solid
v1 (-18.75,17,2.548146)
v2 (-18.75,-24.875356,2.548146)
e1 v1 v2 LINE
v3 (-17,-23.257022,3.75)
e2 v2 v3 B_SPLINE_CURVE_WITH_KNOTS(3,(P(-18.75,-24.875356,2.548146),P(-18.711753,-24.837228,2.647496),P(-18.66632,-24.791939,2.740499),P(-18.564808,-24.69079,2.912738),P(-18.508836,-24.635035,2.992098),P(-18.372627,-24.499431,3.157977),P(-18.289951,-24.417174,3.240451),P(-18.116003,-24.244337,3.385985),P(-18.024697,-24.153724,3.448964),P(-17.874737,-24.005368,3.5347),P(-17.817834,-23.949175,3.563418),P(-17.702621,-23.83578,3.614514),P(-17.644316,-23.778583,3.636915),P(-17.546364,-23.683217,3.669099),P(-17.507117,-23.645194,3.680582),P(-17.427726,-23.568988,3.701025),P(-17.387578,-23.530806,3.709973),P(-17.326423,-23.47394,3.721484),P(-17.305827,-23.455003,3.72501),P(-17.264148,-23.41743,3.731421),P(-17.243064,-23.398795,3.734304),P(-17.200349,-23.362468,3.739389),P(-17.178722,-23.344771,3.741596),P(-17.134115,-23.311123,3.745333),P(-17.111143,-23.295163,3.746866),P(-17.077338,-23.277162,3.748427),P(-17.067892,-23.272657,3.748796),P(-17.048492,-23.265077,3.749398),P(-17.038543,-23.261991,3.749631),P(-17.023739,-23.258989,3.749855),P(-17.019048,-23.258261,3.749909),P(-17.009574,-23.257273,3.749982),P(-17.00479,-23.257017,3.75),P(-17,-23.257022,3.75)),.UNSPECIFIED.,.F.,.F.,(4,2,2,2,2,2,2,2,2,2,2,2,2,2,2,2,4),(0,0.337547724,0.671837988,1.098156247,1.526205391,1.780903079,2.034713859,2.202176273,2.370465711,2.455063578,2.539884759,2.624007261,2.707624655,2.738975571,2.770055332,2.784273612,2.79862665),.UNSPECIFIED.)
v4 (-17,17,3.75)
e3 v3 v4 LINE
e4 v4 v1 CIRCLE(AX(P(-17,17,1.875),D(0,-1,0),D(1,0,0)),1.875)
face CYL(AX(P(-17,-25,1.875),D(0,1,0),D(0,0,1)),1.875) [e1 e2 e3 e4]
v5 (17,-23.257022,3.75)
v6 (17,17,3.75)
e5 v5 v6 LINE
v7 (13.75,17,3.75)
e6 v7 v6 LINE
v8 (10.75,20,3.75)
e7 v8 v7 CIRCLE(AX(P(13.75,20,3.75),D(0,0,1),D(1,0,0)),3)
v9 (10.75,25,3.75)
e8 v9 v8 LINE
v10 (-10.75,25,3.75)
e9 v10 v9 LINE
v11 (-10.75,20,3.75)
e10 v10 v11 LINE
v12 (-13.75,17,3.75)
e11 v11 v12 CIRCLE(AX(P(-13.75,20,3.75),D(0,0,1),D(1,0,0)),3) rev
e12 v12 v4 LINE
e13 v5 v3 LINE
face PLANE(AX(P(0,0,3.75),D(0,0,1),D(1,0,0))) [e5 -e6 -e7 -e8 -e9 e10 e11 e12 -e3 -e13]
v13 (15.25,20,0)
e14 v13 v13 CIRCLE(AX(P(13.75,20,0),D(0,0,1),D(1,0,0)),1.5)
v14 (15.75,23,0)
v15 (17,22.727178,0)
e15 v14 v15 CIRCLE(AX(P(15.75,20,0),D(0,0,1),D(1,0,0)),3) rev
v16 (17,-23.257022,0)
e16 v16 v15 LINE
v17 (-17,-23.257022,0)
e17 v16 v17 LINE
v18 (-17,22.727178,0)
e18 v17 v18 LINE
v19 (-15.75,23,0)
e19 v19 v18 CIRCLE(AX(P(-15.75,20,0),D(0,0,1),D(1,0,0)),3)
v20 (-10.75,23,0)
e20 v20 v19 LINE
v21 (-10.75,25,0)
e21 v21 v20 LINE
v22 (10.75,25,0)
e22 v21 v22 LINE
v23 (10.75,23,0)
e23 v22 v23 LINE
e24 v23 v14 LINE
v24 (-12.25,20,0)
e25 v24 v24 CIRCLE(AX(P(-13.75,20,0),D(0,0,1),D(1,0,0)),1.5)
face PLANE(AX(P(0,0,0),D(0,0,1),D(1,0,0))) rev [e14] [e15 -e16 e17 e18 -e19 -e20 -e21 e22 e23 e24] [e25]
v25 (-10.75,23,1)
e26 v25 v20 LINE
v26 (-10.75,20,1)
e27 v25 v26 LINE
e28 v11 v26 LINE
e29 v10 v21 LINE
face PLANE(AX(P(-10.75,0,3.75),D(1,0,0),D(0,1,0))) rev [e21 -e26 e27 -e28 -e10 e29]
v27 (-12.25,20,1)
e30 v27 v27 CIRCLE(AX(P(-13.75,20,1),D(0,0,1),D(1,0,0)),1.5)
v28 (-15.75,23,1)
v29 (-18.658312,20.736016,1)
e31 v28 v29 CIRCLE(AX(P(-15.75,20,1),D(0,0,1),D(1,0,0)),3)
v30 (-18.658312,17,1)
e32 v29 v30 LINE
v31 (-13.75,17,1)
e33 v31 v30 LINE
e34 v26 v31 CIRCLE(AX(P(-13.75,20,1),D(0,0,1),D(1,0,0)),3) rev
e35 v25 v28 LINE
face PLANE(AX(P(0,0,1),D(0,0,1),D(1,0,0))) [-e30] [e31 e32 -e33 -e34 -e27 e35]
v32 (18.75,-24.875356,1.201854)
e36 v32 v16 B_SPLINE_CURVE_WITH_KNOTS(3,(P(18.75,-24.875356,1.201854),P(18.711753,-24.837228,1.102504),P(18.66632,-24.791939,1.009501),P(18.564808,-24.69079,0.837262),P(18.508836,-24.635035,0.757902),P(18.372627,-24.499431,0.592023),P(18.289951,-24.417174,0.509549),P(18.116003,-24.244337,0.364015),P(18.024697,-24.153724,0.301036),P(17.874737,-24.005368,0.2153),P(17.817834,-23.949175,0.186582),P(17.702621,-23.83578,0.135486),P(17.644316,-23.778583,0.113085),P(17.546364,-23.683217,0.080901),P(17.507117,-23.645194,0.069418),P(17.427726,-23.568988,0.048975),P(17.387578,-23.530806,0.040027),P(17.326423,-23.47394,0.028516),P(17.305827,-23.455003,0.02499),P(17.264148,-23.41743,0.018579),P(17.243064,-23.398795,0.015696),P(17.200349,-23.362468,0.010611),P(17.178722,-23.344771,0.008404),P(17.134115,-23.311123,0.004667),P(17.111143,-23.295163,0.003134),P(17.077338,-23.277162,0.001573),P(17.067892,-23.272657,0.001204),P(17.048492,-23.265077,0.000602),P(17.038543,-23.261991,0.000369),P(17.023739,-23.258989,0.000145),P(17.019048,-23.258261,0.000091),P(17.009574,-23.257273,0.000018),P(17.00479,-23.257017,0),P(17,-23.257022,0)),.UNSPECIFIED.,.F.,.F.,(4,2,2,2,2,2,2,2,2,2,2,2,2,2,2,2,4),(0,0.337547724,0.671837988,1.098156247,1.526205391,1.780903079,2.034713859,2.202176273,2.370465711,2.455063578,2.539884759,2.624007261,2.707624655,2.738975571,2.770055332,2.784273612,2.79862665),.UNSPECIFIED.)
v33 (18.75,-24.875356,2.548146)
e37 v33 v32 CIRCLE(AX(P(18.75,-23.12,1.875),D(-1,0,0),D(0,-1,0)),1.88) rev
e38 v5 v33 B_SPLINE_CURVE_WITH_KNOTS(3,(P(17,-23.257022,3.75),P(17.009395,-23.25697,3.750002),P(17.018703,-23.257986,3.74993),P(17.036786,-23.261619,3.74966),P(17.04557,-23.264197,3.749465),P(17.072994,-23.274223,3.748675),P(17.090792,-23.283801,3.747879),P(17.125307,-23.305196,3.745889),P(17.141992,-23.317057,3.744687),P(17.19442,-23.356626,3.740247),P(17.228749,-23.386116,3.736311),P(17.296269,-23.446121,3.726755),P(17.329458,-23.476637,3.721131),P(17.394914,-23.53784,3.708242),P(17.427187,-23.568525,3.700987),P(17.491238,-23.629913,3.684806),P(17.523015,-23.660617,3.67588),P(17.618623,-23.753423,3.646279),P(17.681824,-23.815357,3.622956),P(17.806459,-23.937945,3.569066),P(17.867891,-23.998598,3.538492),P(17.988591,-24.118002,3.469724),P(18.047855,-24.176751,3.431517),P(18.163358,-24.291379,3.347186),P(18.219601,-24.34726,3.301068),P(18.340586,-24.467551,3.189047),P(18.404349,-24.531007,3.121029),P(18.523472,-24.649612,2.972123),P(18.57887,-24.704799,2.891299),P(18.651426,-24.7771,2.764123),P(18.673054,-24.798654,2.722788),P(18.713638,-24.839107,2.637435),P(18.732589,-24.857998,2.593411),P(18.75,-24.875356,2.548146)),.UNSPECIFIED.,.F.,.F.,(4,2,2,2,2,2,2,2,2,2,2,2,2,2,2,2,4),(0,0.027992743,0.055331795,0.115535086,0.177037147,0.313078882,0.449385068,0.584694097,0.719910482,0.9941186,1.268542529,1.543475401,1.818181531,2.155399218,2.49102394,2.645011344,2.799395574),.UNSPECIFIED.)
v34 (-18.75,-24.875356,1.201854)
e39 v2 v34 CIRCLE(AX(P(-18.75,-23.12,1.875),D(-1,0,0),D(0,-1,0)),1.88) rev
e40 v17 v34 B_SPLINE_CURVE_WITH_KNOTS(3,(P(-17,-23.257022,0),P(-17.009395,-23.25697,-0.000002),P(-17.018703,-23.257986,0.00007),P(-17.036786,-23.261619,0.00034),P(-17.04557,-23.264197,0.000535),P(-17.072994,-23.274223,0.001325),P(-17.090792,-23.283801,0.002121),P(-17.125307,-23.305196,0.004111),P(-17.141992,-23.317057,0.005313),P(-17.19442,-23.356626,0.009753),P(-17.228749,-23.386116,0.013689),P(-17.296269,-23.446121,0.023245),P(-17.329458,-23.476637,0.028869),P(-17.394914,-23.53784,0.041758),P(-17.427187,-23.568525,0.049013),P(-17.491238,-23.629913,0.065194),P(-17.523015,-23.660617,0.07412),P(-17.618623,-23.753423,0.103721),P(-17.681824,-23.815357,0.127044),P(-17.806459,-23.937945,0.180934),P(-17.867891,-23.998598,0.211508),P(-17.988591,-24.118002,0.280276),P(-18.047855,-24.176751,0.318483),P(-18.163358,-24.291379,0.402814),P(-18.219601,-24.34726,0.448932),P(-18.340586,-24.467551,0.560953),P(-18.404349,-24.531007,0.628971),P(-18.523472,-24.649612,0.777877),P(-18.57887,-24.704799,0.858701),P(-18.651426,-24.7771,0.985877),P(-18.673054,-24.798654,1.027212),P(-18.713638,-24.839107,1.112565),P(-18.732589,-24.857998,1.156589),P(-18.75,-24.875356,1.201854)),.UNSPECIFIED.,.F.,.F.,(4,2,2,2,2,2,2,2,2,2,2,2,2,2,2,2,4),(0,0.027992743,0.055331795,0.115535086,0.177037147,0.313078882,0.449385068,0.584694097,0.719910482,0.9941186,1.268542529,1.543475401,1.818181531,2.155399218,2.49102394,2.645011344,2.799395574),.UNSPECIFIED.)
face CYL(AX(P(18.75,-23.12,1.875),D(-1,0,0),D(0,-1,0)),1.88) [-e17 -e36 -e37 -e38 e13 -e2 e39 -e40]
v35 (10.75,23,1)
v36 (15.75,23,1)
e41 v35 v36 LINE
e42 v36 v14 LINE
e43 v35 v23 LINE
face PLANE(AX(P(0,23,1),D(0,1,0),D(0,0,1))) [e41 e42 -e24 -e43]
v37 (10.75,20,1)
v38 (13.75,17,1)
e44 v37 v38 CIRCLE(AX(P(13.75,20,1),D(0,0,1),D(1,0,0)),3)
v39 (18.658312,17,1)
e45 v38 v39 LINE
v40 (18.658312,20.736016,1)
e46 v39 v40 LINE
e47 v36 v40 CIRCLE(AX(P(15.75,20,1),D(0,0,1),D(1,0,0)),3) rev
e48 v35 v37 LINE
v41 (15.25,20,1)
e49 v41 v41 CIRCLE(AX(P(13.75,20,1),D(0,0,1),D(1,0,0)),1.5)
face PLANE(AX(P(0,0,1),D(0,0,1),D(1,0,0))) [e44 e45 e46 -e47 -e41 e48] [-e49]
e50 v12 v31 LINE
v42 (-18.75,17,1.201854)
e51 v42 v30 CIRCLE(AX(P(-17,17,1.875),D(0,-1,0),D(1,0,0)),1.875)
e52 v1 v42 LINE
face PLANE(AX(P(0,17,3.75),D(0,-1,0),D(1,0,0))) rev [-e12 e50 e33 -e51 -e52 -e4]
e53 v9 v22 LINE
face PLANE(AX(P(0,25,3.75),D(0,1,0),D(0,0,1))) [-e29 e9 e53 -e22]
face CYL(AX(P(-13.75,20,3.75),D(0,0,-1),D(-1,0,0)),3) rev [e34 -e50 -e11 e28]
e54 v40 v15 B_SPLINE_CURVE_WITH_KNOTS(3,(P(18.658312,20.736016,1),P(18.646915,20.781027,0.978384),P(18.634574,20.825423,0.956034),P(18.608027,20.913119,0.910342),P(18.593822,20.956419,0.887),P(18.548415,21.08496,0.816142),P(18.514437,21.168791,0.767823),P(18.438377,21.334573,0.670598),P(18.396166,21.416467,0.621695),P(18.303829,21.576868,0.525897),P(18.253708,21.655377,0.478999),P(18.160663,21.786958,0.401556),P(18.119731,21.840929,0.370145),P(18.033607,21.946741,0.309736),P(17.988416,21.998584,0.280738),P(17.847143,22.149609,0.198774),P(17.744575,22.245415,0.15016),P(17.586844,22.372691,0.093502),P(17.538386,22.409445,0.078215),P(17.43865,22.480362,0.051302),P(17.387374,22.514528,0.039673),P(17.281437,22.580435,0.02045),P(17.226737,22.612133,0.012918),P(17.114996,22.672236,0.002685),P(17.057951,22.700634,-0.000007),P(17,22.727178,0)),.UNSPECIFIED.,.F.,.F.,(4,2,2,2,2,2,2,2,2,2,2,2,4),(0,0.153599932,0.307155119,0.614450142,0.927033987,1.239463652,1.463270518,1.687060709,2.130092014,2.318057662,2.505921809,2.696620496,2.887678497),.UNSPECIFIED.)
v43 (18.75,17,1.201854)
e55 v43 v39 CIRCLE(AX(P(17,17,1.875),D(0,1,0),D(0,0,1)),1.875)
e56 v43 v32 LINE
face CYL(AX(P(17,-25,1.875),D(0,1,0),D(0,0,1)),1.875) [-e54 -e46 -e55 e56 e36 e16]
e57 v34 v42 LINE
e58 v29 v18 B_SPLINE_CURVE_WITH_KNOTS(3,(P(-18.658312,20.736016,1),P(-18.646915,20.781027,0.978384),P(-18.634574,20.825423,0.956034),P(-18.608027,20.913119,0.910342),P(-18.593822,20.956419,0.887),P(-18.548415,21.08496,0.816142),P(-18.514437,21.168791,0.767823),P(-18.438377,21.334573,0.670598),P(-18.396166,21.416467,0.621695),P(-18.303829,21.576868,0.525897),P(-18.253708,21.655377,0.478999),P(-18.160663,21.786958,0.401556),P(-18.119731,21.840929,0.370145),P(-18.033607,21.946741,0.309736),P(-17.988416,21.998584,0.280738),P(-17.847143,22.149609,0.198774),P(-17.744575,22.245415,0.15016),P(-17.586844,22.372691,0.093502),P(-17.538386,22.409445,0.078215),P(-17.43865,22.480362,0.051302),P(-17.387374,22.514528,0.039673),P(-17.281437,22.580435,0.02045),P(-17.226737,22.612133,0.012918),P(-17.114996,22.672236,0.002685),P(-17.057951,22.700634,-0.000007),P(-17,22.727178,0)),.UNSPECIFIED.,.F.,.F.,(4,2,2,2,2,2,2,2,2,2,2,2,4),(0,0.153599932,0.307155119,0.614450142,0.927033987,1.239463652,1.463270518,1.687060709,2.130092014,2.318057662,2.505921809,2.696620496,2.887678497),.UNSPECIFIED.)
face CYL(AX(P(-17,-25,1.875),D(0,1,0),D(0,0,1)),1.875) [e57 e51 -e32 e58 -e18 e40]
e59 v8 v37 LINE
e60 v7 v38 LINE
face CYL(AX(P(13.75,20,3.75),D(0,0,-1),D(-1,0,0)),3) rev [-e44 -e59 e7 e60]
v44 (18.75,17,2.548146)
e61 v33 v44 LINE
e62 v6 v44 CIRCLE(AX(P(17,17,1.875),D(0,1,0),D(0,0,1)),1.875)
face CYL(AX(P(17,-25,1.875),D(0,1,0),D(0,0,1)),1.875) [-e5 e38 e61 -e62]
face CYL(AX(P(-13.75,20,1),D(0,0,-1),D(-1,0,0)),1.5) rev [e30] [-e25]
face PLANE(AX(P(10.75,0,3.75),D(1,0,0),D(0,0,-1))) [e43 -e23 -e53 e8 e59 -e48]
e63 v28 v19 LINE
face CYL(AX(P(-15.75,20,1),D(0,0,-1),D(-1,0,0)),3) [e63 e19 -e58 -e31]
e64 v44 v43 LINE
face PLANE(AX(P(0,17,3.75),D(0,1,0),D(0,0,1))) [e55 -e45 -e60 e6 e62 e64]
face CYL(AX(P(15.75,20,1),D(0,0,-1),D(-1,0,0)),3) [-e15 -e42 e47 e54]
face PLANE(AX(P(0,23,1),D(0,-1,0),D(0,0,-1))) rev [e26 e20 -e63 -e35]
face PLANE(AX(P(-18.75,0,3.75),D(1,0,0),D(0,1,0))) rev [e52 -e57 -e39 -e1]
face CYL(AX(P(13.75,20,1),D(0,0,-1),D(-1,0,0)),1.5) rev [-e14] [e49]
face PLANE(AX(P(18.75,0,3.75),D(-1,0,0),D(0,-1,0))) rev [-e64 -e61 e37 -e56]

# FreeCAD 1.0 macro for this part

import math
import FreeCAD as App
import Part
import Sketcher
from FreeCAD import Vector

doc = App.newDocument("Part")
body = doc.addObject("PartDesign::Body", "Body")

sketch1 = body.newObject("Sketcher::SketchObject", "Sketch")
sketch1.AttachmentSupport = (doc.getObject("XY_Plane"), [""])
sketch1.MapMode = "FlatFace"
sketch1.addGeometry([
    Part.LineSegment(Vector(-10.8, 25, 0), Vector(-10.8, 20, 0)),
    Part.ArcOfCircle(Part.Circle(Vector(-13.7, 20, 0), Vector(0, 0, 1), 3), math.radians(-90), math.radians(0)),
    Part.LineSegment(Vector(-13.8, 17, 0), Vector(-18.8, 17, 0)),
    Part.LineSegment(Vector(-18.8, 17, 0), Vector(-18.8, -25, 0)),
    Part.LineSegment(Vector(-18.8, -25, 0), Vector(18.8, -25, 0)),
    Part.LineSegment(Vector(18.8, -25, 0), Vector(18.8, 17, 0)),
    Part.LineSegment(Vector(18.8, 17, 0), Vector(13.8, 17, 0)),
    Part.ArcOfCircle(Part.Circle(Vector(13.7, 20, 0), Vector(0, 0, 1), 3), math.radians(180), math.radians(270)),
    Part.LineSegment(Vector(10.8, 20, 0), Vector(10.8, 25, 0)),
    Part.LineSegment(Vector(10.8, 25, 0), Vector(-10.8, 25, 0)),
], False)
sketch1.addConstraint([
    Sketcher.Constraint("Tangent", 0, 2, 1, 2),
    Sketcher.Constraint("Tangent", 1, 1, 2, 1),
    Sketcher.Constraint("Coincident", 2, 2, 3, 1),
    Sketcher.Constraint("Coincident", 3, 2, 4, 1),
    Sketcher.Constraint("Coincident", 4, 2, 5, 1),
    Sketcher.Constraint("Coincident", 5, 2, 6, 1),
    Sketcher.Constraint("Tangent", 6, 2, 7, 2),
    Sketcher.Constraint("Tangent", 7, 1, 8, 1),
    Sketcher.Constraint("Coincident", 8, 2, 9, 1),
    Sketcher.Constraint("Coincident", 9, 2, 0, 1),
    Sketcher.Constraint("Vertical", 0),
    Sketcher.Constraint("Horizontal", 2),
    Sketcher.Constraint("Vertical", 3),
    Sketcher.Constraint("Horizontal", 4),
    Sketcher.Constraint("Vertical", 5),
    Sketcher.Constraint("Horizontal", 6),
    Sketcher.Constraint("Vertical", 8),
    Sketcher.Constraint("Horizontal", 9),
    Sketcher.Constraint("Equal", 1, 7),
    Sketcher.Constraint("Symmetric", 1, 3, 7, 3, -2),
    Sketcher.Constraint("Equal", 2, 6),
    Sketcher.Constraint("Equal", 6, 0),
    Sketcher.Constraint("Radius", 1, 3.0),
    Sketcher.Constraint("DistanceX", 2, 2, 2, 1, 5.0),
    Sketcher.Constraint("DistanceY", 3, 2, 3, 1, 42.0),
    Sketcher.Constraint("DistanceX", 4, 1, 4, 2, 37.5),
    Sketcher.Constraint("DistanceY", -1, 1, 1, 3, 20.0),
])
pad1 = body.newObject("PartDesign::Pad", "Pad")
pad1.Profile = sketch1
pad1.Length = 3.75

sketch2 = body.newObject("Sketcher::SketchObject", "Sketch001")
sketch2.AttachmentSupport = (doc.getObject("XY_Plane"), [""])
sketch2.MapMode = "FlatFace"
sketch2.addGeometry([
    Part.LineSegment(Vector(15.8, 23, 0), Vector(10.8, 23, 0)),
    Part.LineSegment(Vector(10.8, 23, 0), Vector(10.8, 20, 0)),
    Part.ArcOfCircle(Part.Circle(Vector(13.7, 20, 0), Vector(0, 0, 1), 3), math.radians(180), math.radians(270)),
    Part.LineSegment(Vector(13.8, 17, 0), Vector(18.8, 17, 0)),
    Part.LineSegment(Vector(18.8, 17, 0), Vector(18.8, 20, 0)),
    Part.ArcOfCircle(Part.Circle(Vector(15.8, 20, 0), Vector(0, 0, 1), 3), math.radians(0), math.radians(90)),
    Part.Circle(Vector(13.8, 20, 0), Vector(0, 0, 1), 1.5),
    Part.LineSegment(Vector(-10.8, 20, 0), Vector(-10.8, 23, 0)),
    Part.LineSegment(Vector(-10.8, 23, 0), Vector(-15.8, 23, 0)),
    Part.ArcOfCircle(Part.Circle(Vector(-15.8, 20, 0), Vector(0, 0, 1), 3), math.radians(90), math.radians(180)),
    Part.LineSegment(Vector(-18.8, 20, 0), Vector(-18.8, 17, 0)),
    Part.LineSegment(Vector(-18.8, 17, 0), Vector(-13.8, 17, 0)),
    Part.ArcOfCircle(Part.Circle(Vector(-13.7, 20, 0), Vector(0, 0, 1), 3), math.radians(-90), math.radians(0)),
    Part.Circle(Vector(-13.8, 20, 0), Vector(0, 0, 1), 1.5),
], False)
sketch2.addConstraint([
    Sketcher.Constraint("Coincident", 0, 2, 1, 1),
    Sketcher.Constraint("Tangent", 1, 2, 2, 1),
    Sketcher.Constraint("Tangent", 2, 2, 3, 1),
    Sketcher.Constraint("Coincident", 3, 2, 4, 1),
    Sketcher.Constraint("Tangent", 4, 2, 5, 1),
    Sketcher.Constraint("Tangent", 5, 2, 0, 1),
    Sketcher.Constraint("Coincident", 7, 2, 8, 1),
    Sketcher.Constraint("Tangent", 8, 2, 9, 1),
    Sketcher.Constraint("Tangent", 9, 2, 10, 1),
    Sketcher.Constraint("Coincident", 10, 2, 11, 1),
    Sketcher.Constraint("Tangent", 11, 2, 12, 1),
    Sketcher.Constraint("Tangent", 12, 2, 7, 1),
    Sketcher.Constraint("Horizontal", 0),
    Sketcher.Constraint("Vertical", 1),
    Sketcher.Constraint("Horizontal", 3),
    Sketcher.Constraint("Vertical", 4),
    Sketcher.Constraint("Vertical", 7),
    Sketcher.Constraint("Horizontal", 8),
    Sketcher.Constraint("Vertical", 10),
    Sketcher.Constraint("Horizontal", 11),
    Sketcher.Constraint("Coincident", 6, 3, 2, 3),
    Sketcher.Constraint("Coincident", 13, 3, 12, 3),
    Sketcher.Constraint("Equal", 2, 5),
    Sketcher.Constraint("Equal", 5, 9),
    Sketcher.Constraint("Equal", 9, 12),
    Sketcher.Constraint("Equal", 6, 13),
    Sketcher.Constraint("Symmetric", 5, 3, 9, 3, -2),
    Sketcher.Constraint("Symmetric", 2, 3, 12, 3, -2),
    Sketcher.Constraint("Horizontal", 2, 3, 5, 3),
    Sketcher.Constraint("Diameter", 6, 3.0),
    Sketcher.Constraint("Radius", 2, 3.0),
    Sketcher.Constraint("DistanceX", 0, 2, 0, 1, 5.0),
    Sketcher.Constraint("DistanceY", -1, 1, 2, 3, 20.0),
    Sketcher.Constraint("DistanceX", 9, 3, 2, 3, 29.5),
])
pad2 = body.newObject("PartDesign::Pad", "Pad001")
pad2.Profile = sketch2
pad2.Length = 1

sketch3 = body.newObject("Sketcher::SketchObject", "Sketch002")
sketch3.AttachmentSupport = (doc.getObject("YZ_Plane"), [""])
sketch3.MapMode = "FlatFace"
sketch3.AttachmentOffset = App.Placement(Vector(0, 0, -18.75), App.Rotation())
sketch3.addGeometry([
    Part.ArcOfCircle(Part.Circle(Vector(-23.1, 1.9, 0), Vector(0, 0, 1), 1.9), math.radians(94), math.radians(180)),
    Part.LineSegment(Vector(-25, 1.9, 0), Vector(-25, 3.8, 0)),
    Part.LineSegment(Vector(-25, 3.8, 0), Vector(-23.3, 3.8, 0)),
    Part.ArcOfCircle(Part.Circle(Vector(-23.1, 1.9, 0), Vector(0, 0, 1), 1.9), math.radians(180), math.radians(266)),
    Part.LineSegment(Vector(-23.3, 0, 0), Vector(-25, 0, 0)),
    Part.LineSegment(Vector(-25, 0, 0), Vector(-25, 1.9, 0)),
], False)
sketch3.addConstraint([
    Sketcher.Constraint("Tangent", 0, 2, 1, 1),
    Sketcher.Constraint("Coincident", 1, 2, 2, 1),
    Sketcher.Constraint("Coincident", 2, 2, 0, 1),
    Sketcher.Constraint("Coincident", 3, 2, 4, 1),
    Sketcher.Constraint("Coincident", 4, 2, 5, 1),
    Sketcher.Constraint("Tangent", 5, 2, 3, 1),
    Sketcher.Constraint("Vertical", 1),
    Sketcher.Constraint("Horizontal", 2),
    Sketcher.Constraint("Horizontal", 4),
    Sketcher.Constraint("Vertical", 5),
    Sketcher.Constraint("Coincident", 3, 3, 0, 3),
    Sketcher.Constraint("Equal", 0, 3),
    Sketcher.Constraint("PointOnObject", 3, 2, -1),
    Sketcher.Constraint("Vertical", 2, 2, 3, 2),
    Sketcher.Constraint("Radius", 0, 1.88),
    Sketcher.Constraint("DistanceX", 0, 2, -1, 1, 25.0),
    Sketcher.Constraint("DistanceY", 1, 1, 1, 2, 1.875),
])
pocket1 = body.newObject("PartDesign::Pocket", "Pocket")
pocket1.Profile = sketch3
pocket1.Type = "ThroughAll"
pocket1.Reversed = True

sketch4 = body.newObject("Sketcher::SketchObject", "Sketch003")
sketch4.AttachmentSupport = (doc.getObject("XZ_Plane"), [""])
sketch4.MapMode = "FlatFace"
sketch4.AttachmentOffset = App.Placement(Vector(0, 0, -25), App.Rotation())
sketch4.addGeometry([
    Part.LineSegment(Vector(-17, 4.8, 0), Vector(17, 4.8, 0)),
    Part.ArcOfCircle(Part.Circle(Vector(17, 1.9, 0), Vector(0, 0, 1), 2.9), math.radians(-90), math.radians(90)),
    Part.LineSegment(Vector(17, -1, 0), Vector(-17, -1, 0)),
    Part.ArcOfCircle(Part.Circle(Vector(-17, 1.9, 0), Vector(0, 0, 1), 2.9), math.radians(90), math.radians(270)),
    Part.LineSegment(Vector(17, 3.8, 0), Vector(-17, 3.8, 0)),
    Part.ArcOfCircle(Part.Circle(Vector(-17, 1.9, 0), Vector(0, 0, 1), 1.9), math.radians(90), math.radians(270)),
    Part.LineSegment(Vector(-17, 0, 0), Vector(17, 0, 0)),
    Part.ArcOfCircle(Part.Circle(Vector(17, 1.9, 0), Vector(0, 0, 1), 1.9), math.radians(-90), math.radians(90)),
], False)
sketch4.addConstraint([
    Sketcher.Constraint("Tangent", 0, 2, 1, 2),
    Sketcher.Constraint("Tangent", 1, 1, 2, 1),
    Sketcher.Constraint("Tangent", 2, 2, 3, 2),
    Sketcher.Constraint("Tangent", 3, 1, 0, 1),
    Sketcher.Constraint("Tangent", 4, 2, 5, 1),
    Sketcher.Constraint("Tangent", 5, 2, 6, 1),
    Sketcher.Constraint("Tangent", 6, 2, 7, 1),
    Sketcher.Constraint("Tangent", 7, 2, 4, 1),
    Sketcher.Constraint("Horizontal", 0),
    Sketcher.Constraint("Horizontal", 2),
    Sketcher.Constraint("Horizontal", 4),
    Sketcher.Constraint("Horizontal", 6),
    Sketcher.Constraint("Coincident", 5, 3, 3, 3),
    Sketcher.Constraint("Symmetric", 5, 2, 6, 2, -1, 1),
    Sketcher.Constraint("Vertical", 7, 3, 0, 2),
    Sketcher.Constraint("DistanceX", 0, 1, 0, 2, 34.0),
    Sketcher.Constraint("DistanceY", 1, 1, -1, 1, 1.0),
    Sketcher.Constraint("Radius", 1, 2.875),
])
pocket2 = body.newObject("PartDesign::Pocket", "Pocket001")
pocket2.Profile = sketch4
pocket2.Type = "ThroughAll"
pocket2.Reversed = True

doc.recompute()
